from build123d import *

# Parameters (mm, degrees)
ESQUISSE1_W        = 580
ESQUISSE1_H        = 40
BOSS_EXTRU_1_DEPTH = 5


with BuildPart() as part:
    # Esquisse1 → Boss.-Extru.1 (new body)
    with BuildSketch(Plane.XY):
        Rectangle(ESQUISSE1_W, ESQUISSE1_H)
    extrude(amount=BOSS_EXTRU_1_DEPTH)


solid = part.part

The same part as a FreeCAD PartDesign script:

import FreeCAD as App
import Part
import Sketcher
from FreeCAD import Vector
Q = App.Units.Quantity


def add_polygon(sketch, points):
    """Adds a closed chain of lines whose ends are joined by coincident constraints."""
    first, n = sketch.GeometryCount, len(points)
    for a, b in zip(points, points[1:] + points[:1]):
        sketch.addGeometry(Part.LineSegment(App.Vector(*a, 0), App.Vector(*b, 0)), False)
    for i in range(n):
        sketch.addConstraint(Sketcher.Constraint("Coincident", first + i, 2, first + (i + 1) % n, 1))

doc = App.newDocument("Part")
body = doc.addObject("PartDesign::Body", "Body")

# Sketch on XY plane
sketch1 = body.newObject("Sketcher::SketchObject", "Sketch")
sketch1.AttachmentSupport = (doc.getObject("XY_Plane"), [""])
sketch1.MapMode = "FlatFace"
add_polygon(sketch1, [(-290, 20), (-290, -20), (290, -20), (290, 20)])  # lines 0-3
sketch1.addConstraint([
    Sketcher.Constraint("Vertical", 0),
    Sketcher.Constraint("Horizontal", 1),
    Sketcher.Constraint("Vertical", 2),
    Sketcher.Constraint("Horizontal", 3),
    Sketcher.Constraint("Symmetric", 0, 2, 2, 2, -1, 1),
    Sketcher.Constraint("DistanceX", 1, 1, 1, 2, Q("580 mm")),
    Sketcher.Constraint("DistanceY", 0, 2, 0, 1, Q("40 mm")),
])
pad1 = body.newObject("PartDesign::Pad", "Pad")
pad1.Profile = sketch1
pad1.Length = 5

doc.recompute()
